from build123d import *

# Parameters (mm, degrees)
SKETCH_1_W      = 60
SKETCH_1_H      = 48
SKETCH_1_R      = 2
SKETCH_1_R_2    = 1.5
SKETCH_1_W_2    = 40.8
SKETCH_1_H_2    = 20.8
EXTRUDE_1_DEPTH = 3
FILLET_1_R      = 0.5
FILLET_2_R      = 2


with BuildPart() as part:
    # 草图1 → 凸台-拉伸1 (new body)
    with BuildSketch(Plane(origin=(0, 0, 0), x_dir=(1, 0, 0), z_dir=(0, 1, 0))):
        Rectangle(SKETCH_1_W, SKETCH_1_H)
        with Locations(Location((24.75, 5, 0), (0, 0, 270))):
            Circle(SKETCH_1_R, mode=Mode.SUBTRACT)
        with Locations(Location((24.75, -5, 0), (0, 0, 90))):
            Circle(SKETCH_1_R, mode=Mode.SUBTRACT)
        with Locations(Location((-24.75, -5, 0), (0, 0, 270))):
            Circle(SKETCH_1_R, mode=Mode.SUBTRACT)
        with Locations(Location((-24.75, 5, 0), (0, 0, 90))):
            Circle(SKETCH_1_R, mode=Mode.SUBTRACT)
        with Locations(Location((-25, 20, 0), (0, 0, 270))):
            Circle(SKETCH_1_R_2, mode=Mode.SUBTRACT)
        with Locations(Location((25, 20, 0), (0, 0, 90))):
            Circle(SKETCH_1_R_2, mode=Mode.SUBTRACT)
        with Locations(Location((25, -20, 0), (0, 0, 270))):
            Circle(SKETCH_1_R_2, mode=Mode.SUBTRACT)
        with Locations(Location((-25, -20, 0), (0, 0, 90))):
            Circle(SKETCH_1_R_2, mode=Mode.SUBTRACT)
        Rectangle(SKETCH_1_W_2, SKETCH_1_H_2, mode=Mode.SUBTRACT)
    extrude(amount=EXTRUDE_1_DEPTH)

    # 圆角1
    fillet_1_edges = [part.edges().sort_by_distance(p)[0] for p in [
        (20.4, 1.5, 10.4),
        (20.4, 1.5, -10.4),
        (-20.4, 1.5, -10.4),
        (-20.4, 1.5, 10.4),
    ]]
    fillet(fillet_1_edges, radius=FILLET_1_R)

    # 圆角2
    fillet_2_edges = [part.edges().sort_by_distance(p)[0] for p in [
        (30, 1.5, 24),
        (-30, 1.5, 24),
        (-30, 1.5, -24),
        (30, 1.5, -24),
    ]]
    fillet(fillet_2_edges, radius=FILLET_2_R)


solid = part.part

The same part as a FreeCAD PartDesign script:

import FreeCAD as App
import Part
import Sketcher
Q = App.Units.Quantity


def edges_at(feature, points):
    """Names of the edges that pass closest to the given points."""
    edges = feature.Shape.Edges
    near = lambda p: min(range(len(edges)), key=lambda i: edges[i].distToShape(Part.Vertex(*p))[0])
    return sorted({f"Edge{near(p) + 1}" for p in points})


def add_polygon(sketch, points):
    """Adds a closed chain of lines whose ends are joined by coincident constraints."""
    first, n = sketch.GeometryCount, len(points)
    for a, b in zip(points, points[1:] + points[:1]):
        sketch.addGeometry(Part.LineSegment(App.Vector(*a, 0), App.Vector(*b, 0)), False)
    for i in range(n):
        sketch.addConstraint(Sketcher.Constraint("Coincident", first + i, 2, first + (i + 1) % n, 1))

doc = App.newDocument("Part")
body = doc.addObject("PartDesign::Body", "Body")

# Sketch on XZ plane
sketch1 = body.newObject("Sketcher::SketchObject", "Sketch")
sketch1.AttachmentSupport = (doc.getObject("XZ_Plane"), [""])
sketch1.MapMode = "FlatFace"
add_polygon(sketch1, [(-30, -24), (-30, 24), (30, 24), (30, -24)])  # lines 0-3
sketch1.addGeometry(Part.Circle(App.Vector(-25, 20, 0), App.Vector(0, 0, 1), 1.5), False)  # 4
sketch1.addGeometry(Part.Circle(App.Vector(-24.75, 5, 0), App.Vector(0, 0, 1), 2), False)  # 5
sketch1.addGeometry(Part.Circle(App.Vector(25, 20, 0), App.Vector(0, 0, 1), 1.5), False)  # 6
sketch1.addGeometry(Part.Circle(App.Vector(24.75, 5, 0), App.Vector(0, 0, 1), 2), False)  # 7
sketch1.addGeometry(Part.Circle(App.Vector(-24.75, -5, 0), App.Vector(0, 0, 1), 2), False)  # 8
add_polygon(sketch1, [(20.4, 10.4), (-20.4, 10.4), (-20.4, -10.4), (20.4, -10.4)])  # lines 9-12
sketch1.addGeometry(Part.Circle(App.Vector(-25, -20, 0), App.Vector(0, 0, 1), 1.5), False)  # 13
sketch1.addGeometry(Part.Circle(App.Vector(24.75, -5, 0), App.Vector(0, 0, 1), 2), False)  # 14
sketch1.addGeometry(Part.Circle(App.Vector(25, -20, 0), App.Vector(0, 0, 1), 1.5), False)  # 15
sketch1.addConstraint([
    Sketcher.Constraint("Vertical", 0),
    Sketcher.Constraint("Horizontal", 1),
    Sketcher.Constraint("Vertical", 2),
    Sketcher.Constraint("Horizontal", 3),
    Sketcher.Constraint("Horizontal", 9),
    Sketcher.Constraint("Vertical", 10),
    Sketcher.Constraint("Horizontal", 11),
    Sketcher.Constraint("Vertical", 12),
    Sketcher.Constraint("Equal", 4, 6),
    Sketcher.Constraint("Equal", 5, 7),
    Sketcher.Constraint("Equal", 7, 8),
    Sketcher.Constraint("Equal", 6, 13),
    Sketcher.Constraint("Equal", 8, 14),
    Sketcher.Constraint("Equal", 13, 15),
    Sketcher.Constraint("Symmetric", 7, 3, 8, 3, -1, 1),
    Sketcher.Constraint("Symmetric", 6, 3, 13, 3, -1, 1),
    Sketcher.Constraint("Symmetric", 5, 3, 14, 3, -1, 1),
    Sketcher.Constraint("Symmetric", 4, 3, 15, 3, -1, 1),
    Sketcher.Constraint("Symmetric", 0, 2, 2, 2, -1, 1),
    Sketcher.Constraint("Symmetric", 9, 2, 11, 2, -1, 1),
    Sketcher.Constraint("Symmetric", 4, 3, 6, 3, -2),
    Sketcher.Constraint("Symmetric", 5, 3, 7, 3, -2),
    Sketcher.Constraint("Diameter", 4, Q("3 mm")),
    Sketcher.Constraint("Diameter", 5, Q("4 mm")),
    Sketcher.Constraint("DistanceX", 1, 1, 1, 2, Q("60 mm")),
    Sketcher.Constraint("DistanceY", 0, 1, 0, 2, Q("48 mm")),
    Sketcher.Constraint("DistanceX", 9, 2, 9, 1, Q("40.8 mm")),
    Sketcher.Constraint("DistanceY", 10, 2, 10, 1, Q("20.8 mm")),
    Sketcher.Constraint("DistanceX", 4, 3, -1, 1, Q("25 mm")),
    Sketcher.Constraint("DistanceY", -1, 1, 4, 3, Q("20 mm")),
    Sketcher.Constraint("DistanceY", -1, 1, 5, 3, Q("5 mm")),
    Sketcher.Constraint("DistanceX", 5, 3, 7, 3, Q("49.5 mm")),
])
pad1 = body.newObject("PartDesign::Pad", "Pad")
pad1.Profile = sketch1
pad1.Length = 3
pad1.Reversed = True
doc.recompute()

fillet = body.newObject("PartDesign::Fillet", "Fillet")
fillet.Base = (pad1, edges_at(pad1, [
    (20.4, 1.5, 10.4),
    (20.4, 1.5, -10.4),
    (-20.4, 1.5, -10.4),
    (-20.4, 1.5, 10.4),
]))
fillet.Radius = 0.5
doc.recompute()

fillet2 = body.newObject("PartDesign::Fillet", "Fillet001")
fillet2.Base = (fillet, edges_at(fillet, [
    (30, 1.5, 24),
    (-30, 1.5, 24),
    (-30, 1.5, -24),
    (30, 1.5, -24),
]))
fillet2.Radius = 2

doc.recompute()
